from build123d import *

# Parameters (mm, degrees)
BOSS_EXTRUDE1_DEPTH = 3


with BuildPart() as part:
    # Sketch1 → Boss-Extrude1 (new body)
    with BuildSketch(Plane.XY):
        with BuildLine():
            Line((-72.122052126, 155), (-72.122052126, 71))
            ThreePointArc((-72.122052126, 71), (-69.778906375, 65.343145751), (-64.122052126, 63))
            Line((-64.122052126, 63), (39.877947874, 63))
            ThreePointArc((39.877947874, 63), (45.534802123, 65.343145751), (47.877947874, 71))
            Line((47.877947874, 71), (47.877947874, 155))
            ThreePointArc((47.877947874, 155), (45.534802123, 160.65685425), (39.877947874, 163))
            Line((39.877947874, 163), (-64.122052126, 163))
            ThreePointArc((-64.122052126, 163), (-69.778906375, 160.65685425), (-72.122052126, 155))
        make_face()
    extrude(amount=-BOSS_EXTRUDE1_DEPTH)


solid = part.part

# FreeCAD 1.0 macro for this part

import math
import FreeCAD as App
import Part
import Sketcher
from FreeCAD import Vector

doc = App.newDocument("Part")
body = doc.addObject("PartDesign::Body", "Body")

sketch1 = body.newObject("Sketcher::SketchObject", "Sketch")
sketch1.AttachmentSupport = (doc.getObject("XY_Plane"), [""])
sketch1.MapMode = "FlatFace"
sketch1.addGeometry(Part.LineSegment(Vector(-72, 155, 0), Vector(-72, 71, 0)), False)
sketch1.addGeometry(Part.ArcOfCircle(Part.Circle(Vector(-64, 71, 0), Vector(0, 0, 1), 8), math.radians(-180), math.radians(-90)), False)
sketch1.addGeometry(Part.LineSegment(Vector(-64, 63, 0), Vector(40, 63, 0)), False)
sketch1.addGeometry(Part.ArcOfCircle(Part.Circle(Vector(40, 71, 0), Vector(0, 0, 1), 8), math.radians(-90), math.radians(0)), False)
sketch1.addGeometry(Part.LineSegment(Vector(48, 71, 0), Vector(48, 155, 0)), False)
sketch1.addGeometry(Part.ArcOfCircle(Part.Circle(Vector(40, 155, 0), Vector(0, 0, 1), 8), math.radians(0), math.radians(90)), False)
sketch1.addGeometry(Part.LineSegment(Vector(40, 163, 0), Vector(-64, 163, 0)), False)
sketch1.addGeometry(Part.ArcOfCircle(Part.Circle(Vector(-64, 155, 0), Vector(0, 0, 1), 8), math.radians(90), math.radians(180)), False)
sketch1.addConstraint(Sketcher.Constraint("Tangent", 0, 2, 1, 1))
sketch1.addConstraint(Sketcher.Constraint("Tangent", 1, 2, 2, 1))
sketch1.addConstraint(Sketcher.Constraint("Tangent", 2, 2, 3, 1))
sketch1.addConstraint(Sketcher.Constraint("Tangent", 3, 2, 4, 1))
sketch1.addConstraint(Sketcher.Constraint("Tangent", 4, 2, 5, 1))
sketch1.addConstraint(Sketcher.Constraint("Tangent", 5, 2, 6, 1))
sketch1.addConstraint(Sketcher.Constraint("Tangent", 6, 2, 7, 1))
sketch1.addConstraint(Sketcher.Constraint("Tangent", 7, 2, 0, 1))
sketch1.addConstraint(Sketcher.Constraint("Vertical", 0))
sketch1.addConstraint(Sketcher.Constraint("Horizontal", 2))
sketch1.addConstraint(Sketcher.Constraint("Vertical", 4))
sketch1.addConstraint(Sketcher.Constraint("Horizontal", 6))
sketch1.addConstraint(Sketcher.Constraint("Equal", 1, 3))
sketch1.addConstraint(Sketcher.Constraint("Equal", 3, 5))
sketch1.addConstraint(Sketcher.Constraint("Equal", 5, 7))
sketch1.addConstraint(Sketcher.Constraint("Radius", 1, 8.0))
sketch1.addConstraint(Sketcher.Constraint("DistanceX", 2, 1, 2, 2, 104.0))
sketch1.addConstraint(Sketcher.Constraint("DistanceY", 0, 2, 0, 1, 84.0))
sketch1.addConstraint(Sketcher.Constraint("DistanceY", -1, 1, 1, 3, 71.0))
sketch1.addConstraint(Sketcher.Constraint("DistanceX", 1, 3, -1, 1, 64.122052))
pad1 = body.newObject("PartDesign::Pad", "Pad")
pad1.Profile = sketch1
pad1.Length = 3
pad1.Reversed = True

doc.recompute()
